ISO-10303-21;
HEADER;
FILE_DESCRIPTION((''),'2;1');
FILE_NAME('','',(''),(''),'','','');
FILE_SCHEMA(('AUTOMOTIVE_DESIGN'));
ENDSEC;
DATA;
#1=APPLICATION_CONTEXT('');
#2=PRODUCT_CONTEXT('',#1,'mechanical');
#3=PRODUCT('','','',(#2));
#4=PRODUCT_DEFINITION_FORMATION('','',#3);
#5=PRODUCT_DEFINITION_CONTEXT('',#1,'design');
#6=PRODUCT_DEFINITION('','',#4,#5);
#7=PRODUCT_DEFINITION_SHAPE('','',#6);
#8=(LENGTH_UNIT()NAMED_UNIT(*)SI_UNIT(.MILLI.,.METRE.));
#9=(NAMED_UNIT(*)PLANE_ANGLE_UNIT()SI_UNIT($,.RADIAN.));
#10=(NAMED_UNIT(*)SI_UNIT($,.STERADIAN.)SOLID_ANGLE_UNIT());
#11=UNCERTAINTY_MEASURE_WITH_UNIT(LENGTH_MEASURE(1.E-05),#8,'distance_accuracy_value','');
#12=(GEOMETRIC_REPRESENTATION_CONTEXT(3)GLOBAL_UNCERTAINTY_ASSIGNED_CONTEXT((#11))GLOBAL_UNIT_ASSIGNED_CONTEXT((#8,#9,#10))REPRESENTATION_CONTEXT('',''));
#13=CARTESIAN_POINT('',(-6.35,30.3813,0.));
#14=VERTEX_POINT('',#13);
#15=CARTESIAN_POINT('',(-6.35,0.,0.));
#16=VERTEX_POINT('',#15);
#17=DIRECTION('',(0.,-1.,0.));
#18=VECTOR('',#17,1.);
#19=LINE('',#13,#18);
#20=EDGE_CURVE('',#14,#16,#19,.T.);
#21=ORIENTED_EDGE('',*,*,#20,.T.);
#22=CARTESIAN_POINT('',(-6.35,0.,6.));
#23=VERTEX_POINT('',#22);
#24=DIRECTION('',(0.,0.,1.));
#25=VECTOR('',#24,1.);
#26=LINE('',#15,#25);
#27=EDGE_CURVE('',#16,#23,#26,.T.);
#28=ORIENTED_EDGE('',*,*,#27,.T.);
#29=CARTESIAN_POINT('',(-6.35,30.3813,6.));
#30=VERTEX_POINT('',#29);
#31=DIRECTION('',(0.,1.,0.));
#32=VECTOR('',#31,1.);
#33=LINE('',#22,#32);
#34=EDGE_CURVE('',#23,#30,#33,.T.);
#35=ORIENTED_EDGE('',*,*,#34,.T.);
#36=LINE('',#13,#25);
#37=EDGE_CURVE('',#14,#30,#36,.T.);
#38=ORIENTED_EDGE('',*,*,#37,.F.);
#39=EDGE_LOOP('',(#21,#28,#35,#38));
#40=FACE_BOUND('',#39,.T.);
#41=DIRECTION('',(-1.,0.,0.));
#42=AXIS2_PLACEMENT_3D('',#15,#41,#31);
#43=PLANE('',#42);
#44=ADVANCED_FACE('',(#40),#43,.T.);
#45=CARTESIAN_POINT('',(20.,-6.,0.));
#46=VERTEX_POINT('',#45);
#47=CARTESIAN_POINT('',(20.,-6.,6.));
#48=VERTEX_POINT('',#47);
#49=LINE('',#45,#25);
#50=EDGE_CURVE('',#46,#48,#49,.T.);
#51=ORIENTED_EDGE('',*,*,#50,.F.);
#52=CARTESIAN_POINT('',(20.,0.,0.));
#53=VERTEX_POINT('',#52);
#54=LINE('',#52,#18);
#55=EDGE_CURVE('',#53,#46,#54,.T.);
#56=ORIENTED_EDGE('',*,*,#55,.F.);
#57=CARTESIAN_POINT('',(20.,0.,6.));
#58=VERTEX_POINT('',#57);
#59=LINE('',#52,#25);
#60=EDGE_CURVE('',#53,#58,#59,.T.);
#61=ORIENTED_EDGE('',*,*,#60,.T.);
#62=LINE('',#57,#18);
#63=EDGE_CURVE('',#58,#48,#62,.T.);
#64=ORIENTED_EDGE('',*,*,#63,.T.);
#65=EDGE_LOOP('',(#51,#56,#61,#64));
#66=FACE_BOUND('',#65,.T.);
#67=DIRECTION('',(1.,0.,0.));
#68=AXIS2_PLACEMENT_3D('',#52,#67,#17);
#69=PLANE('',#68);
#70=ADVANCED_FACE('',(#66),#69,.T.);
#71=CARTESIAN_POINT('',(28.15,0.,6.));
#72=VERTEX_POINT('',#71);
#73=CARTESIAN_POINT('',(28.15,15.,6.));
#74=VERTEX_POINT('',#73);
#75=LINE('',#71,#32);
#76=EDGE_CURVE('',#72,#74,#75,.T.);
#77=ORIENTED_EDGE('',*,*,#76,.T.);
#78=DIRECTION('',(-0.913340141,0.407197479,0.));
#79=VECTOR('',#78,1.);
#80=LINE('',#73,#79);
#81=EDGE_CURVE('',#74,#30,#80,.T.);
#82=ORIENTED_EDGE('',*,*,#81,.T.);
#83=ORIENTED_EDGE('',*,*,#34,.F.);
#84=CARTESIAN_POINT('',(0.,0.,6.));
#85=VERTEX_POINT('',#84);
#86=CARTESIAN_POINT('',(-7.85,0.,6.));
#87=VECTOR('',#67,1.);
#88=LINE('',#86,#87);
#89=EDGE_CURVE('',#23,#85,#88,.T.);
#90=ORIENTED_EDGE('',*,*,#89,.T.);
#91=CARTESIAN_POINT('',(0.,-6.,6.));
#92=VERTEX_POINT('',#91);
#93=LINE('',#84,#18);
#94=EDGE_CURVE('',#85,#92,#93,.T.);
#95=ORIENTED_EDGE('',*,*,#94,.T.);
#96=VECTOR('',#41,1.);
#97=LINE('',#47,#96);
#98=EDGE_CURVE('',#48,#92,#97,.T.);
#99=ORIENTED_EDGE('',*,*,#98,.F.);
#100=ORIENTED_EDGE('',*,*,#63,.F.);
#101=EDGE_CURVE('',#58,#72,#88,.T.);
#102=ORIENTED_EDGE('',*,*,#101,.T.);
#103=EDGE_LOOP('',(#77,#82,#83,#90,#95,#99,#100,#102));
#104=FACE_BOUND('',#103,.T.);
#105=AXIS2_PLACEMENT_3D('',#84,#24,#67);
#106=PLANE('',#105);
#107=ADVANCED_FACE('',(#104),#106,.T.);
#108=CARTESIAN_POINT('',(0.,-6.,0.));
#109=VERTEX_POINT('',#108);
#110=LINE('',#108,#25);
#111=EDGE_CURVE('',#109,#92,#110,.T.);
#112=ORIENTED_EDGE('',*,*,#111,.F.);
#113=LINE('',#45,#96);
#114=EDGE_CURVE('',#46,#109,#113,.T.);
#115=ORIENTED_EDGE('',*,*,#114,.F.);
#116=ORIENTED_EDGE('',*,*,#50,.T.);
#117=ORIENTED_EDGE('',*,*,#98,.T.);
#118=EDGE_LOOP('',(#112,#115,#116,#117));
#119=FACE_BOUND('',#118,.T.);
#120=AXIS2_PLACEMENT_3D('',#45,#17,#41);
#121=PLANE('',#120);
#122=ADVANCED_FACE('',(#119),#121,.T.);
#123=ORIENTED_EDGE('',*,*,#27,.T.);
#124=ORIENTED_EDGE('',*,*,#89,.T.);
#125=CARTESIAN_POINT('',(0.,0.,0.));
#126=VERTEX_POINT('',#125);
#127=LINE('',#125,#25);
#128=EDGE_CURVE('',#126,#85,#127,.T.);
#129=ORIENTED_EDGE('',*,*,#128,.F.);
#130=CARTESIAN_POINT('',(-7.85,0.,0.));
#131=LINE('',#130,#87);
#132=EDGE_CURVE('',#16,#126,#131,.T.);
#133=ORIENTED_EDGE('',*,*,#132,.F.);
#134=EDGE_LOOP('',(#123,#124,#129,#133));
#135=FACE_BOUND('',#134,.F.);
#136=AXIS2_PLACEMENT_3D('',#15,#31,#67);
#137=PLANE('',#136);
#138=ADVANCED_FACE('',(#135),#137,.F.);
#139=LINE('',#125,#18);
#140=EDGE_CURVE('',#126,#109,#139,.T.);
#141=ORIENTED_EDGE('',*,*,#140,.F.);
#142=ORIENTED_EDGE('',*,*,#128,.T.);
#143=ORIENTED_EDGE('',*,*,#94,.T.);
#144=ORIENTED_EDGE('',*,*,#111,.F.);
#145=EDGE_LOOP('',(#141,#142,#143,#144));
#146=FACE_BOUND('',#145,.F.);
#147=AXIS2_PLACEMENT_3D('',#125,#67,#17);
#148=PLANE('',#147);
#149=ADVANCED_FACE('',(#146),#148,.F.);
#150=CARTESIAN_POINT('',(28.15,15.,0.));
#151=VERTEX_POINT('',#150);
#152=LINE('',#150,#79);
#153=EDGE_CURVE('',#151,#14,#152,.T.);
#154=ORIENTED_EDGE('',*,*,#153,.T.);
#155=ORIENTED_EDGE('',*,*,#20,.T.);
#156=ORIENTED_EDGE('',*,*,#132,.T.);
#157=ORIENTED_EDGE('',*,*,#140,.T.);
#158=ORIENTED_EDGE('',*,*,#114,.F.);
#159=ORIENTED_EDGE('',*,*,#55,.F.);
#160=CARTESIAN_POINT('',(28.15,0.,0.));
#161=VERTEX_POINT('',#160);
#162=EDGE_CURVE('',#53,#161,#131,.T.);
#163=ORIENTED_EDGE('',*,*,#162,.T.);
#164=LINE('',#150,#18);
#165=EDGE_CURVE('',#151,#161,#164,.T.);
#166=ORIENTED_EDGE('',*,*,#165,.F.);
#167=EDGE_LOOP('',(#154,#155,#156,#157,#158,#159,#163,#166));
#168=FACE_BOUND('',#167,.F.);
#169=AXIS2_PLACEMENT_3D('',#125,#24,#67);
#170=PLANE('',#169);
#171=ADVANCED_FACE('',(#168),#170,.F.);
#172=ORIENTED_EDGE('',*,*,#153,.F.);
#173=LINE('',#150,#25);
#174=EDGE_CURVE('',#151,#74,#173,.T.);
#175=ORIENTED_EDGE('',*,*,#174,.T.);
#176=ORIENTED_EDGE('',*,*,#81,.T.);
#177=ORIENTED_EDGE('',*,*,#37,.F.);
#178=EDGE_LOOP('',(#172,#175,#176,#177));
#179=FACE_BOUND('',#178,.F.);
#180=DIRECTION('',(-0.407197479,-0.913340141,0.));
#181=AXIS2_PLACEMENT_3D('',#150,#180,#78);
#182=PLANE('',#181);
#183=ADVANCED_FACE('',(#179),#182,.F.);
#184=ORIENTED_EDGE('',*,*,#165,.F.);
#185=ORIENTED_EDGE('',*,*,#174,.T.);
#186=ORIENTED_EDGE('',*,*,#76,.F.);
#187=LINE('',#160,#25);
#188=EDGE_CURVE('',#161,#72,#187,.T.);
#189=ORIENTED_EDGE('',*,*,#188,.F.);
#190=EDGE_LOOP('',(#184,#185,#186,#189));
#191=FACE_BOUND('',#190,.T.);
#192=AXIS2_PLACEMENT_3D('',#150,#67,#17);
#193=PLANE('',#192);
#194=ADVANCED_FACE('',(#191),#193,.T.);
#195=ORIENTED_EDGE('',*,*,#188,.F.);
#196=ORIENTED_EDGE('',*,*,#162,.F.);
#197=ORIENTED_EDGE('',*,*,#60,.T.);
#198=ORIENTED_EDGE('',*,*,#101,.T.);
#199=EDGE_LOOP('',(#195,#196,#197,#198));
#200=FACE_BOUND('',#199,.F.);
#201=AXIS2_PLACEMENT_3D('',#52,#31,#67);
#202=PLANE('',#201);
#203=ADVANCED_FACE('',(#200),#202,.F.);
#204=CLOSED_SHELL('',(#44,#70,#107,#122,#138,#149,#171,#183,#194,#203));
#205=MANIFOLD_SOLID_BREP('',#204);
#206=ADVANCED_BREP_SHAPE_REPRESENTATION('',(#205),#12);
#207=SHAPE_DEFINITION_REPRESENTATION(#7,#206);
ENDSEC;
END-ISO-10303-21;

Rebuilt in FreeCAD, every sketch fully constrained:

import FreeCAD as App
import Part
import Sketcher
from FreeCAD import Vector
Q = App.Units.Quantity


def add_polygon(sketch, points):
    """Adds a closed chain of lines whose ends are joined by coincident constraints."""
    first, n = sketch.GeometryCount, len(points)
    for a, b in zip(points, points[1:] + points[:1]):
        sketch.addGeometry(Part.LineSegment(App.Vector(*a, 0), App.Vector(*b, 0)), False)
    for i in range(n):
        sketch.addConstraint(Sketcher.Constraint("Coincident", first + i, 2, first + (i + 1) % n, 1))

doc = App.newDocument("Part")
body = doc.addObject("PartDesign::Body", "Body")

# Sketch on XY plane
sketch1 = doc.addObject("Sketcher::SketchObject", "Sketch")
body.addObject(sketch1)
sketch1.AttachmentSupport = (doc.XY_Plane, [""])
sketch1.MapMode = "FlatFace"
add_polygon(sketch1, [(-6, 0), (0, 0), (0, -6), (20, -6), (20, 0), (28, 0), (28, 15), (-6, 30)])  # lines 0-7
sketch1.addConstraint([
    Sketcher.Constraint("Horizontal", 0),
    Sketcher.Constraint("Vertical", 1),
    Sketcher.Constraint("Horizontal", 2),
    Sketcher.Constraint("Vertical", 3),
    Sketcher.Constraint("Horizontal", 4),
    Sketcher.Constraint("Vertical", 5),
    Sketcher.Constraint("Vertical", 7),
    Sketcher.Constraint("Coincident", 0, 2, -1, 1),
    Sketcher.Constraint("PointOnObject", 3, 2, -1),
    Sketcher.Constraint("DistanceX", 2, 1, 2, 2, 20.0),
    Sketcher.Constraint("DistanceY", 1, 2, 1, 1, 6.0),
    Sketcher.Constraint("DistanceY", 5, 1, 5, 2, 15.0),
    Sketcher.Constraint("DistanceX", 0, 1, 0, 2, 6.35),
    Sketcher.Constraint("DistanceX", 4, 1, 4, 2, 8.15),
    Sketcher.Constraint("Angle", 6, Q("155.971 deg")),
])
pad1 = doc.addObject("PartDesign::Pad", "Pad")
body.addObject(pad1)
pad1.Profile = sketch1
pad1.Length = 6

doc.recompute()
